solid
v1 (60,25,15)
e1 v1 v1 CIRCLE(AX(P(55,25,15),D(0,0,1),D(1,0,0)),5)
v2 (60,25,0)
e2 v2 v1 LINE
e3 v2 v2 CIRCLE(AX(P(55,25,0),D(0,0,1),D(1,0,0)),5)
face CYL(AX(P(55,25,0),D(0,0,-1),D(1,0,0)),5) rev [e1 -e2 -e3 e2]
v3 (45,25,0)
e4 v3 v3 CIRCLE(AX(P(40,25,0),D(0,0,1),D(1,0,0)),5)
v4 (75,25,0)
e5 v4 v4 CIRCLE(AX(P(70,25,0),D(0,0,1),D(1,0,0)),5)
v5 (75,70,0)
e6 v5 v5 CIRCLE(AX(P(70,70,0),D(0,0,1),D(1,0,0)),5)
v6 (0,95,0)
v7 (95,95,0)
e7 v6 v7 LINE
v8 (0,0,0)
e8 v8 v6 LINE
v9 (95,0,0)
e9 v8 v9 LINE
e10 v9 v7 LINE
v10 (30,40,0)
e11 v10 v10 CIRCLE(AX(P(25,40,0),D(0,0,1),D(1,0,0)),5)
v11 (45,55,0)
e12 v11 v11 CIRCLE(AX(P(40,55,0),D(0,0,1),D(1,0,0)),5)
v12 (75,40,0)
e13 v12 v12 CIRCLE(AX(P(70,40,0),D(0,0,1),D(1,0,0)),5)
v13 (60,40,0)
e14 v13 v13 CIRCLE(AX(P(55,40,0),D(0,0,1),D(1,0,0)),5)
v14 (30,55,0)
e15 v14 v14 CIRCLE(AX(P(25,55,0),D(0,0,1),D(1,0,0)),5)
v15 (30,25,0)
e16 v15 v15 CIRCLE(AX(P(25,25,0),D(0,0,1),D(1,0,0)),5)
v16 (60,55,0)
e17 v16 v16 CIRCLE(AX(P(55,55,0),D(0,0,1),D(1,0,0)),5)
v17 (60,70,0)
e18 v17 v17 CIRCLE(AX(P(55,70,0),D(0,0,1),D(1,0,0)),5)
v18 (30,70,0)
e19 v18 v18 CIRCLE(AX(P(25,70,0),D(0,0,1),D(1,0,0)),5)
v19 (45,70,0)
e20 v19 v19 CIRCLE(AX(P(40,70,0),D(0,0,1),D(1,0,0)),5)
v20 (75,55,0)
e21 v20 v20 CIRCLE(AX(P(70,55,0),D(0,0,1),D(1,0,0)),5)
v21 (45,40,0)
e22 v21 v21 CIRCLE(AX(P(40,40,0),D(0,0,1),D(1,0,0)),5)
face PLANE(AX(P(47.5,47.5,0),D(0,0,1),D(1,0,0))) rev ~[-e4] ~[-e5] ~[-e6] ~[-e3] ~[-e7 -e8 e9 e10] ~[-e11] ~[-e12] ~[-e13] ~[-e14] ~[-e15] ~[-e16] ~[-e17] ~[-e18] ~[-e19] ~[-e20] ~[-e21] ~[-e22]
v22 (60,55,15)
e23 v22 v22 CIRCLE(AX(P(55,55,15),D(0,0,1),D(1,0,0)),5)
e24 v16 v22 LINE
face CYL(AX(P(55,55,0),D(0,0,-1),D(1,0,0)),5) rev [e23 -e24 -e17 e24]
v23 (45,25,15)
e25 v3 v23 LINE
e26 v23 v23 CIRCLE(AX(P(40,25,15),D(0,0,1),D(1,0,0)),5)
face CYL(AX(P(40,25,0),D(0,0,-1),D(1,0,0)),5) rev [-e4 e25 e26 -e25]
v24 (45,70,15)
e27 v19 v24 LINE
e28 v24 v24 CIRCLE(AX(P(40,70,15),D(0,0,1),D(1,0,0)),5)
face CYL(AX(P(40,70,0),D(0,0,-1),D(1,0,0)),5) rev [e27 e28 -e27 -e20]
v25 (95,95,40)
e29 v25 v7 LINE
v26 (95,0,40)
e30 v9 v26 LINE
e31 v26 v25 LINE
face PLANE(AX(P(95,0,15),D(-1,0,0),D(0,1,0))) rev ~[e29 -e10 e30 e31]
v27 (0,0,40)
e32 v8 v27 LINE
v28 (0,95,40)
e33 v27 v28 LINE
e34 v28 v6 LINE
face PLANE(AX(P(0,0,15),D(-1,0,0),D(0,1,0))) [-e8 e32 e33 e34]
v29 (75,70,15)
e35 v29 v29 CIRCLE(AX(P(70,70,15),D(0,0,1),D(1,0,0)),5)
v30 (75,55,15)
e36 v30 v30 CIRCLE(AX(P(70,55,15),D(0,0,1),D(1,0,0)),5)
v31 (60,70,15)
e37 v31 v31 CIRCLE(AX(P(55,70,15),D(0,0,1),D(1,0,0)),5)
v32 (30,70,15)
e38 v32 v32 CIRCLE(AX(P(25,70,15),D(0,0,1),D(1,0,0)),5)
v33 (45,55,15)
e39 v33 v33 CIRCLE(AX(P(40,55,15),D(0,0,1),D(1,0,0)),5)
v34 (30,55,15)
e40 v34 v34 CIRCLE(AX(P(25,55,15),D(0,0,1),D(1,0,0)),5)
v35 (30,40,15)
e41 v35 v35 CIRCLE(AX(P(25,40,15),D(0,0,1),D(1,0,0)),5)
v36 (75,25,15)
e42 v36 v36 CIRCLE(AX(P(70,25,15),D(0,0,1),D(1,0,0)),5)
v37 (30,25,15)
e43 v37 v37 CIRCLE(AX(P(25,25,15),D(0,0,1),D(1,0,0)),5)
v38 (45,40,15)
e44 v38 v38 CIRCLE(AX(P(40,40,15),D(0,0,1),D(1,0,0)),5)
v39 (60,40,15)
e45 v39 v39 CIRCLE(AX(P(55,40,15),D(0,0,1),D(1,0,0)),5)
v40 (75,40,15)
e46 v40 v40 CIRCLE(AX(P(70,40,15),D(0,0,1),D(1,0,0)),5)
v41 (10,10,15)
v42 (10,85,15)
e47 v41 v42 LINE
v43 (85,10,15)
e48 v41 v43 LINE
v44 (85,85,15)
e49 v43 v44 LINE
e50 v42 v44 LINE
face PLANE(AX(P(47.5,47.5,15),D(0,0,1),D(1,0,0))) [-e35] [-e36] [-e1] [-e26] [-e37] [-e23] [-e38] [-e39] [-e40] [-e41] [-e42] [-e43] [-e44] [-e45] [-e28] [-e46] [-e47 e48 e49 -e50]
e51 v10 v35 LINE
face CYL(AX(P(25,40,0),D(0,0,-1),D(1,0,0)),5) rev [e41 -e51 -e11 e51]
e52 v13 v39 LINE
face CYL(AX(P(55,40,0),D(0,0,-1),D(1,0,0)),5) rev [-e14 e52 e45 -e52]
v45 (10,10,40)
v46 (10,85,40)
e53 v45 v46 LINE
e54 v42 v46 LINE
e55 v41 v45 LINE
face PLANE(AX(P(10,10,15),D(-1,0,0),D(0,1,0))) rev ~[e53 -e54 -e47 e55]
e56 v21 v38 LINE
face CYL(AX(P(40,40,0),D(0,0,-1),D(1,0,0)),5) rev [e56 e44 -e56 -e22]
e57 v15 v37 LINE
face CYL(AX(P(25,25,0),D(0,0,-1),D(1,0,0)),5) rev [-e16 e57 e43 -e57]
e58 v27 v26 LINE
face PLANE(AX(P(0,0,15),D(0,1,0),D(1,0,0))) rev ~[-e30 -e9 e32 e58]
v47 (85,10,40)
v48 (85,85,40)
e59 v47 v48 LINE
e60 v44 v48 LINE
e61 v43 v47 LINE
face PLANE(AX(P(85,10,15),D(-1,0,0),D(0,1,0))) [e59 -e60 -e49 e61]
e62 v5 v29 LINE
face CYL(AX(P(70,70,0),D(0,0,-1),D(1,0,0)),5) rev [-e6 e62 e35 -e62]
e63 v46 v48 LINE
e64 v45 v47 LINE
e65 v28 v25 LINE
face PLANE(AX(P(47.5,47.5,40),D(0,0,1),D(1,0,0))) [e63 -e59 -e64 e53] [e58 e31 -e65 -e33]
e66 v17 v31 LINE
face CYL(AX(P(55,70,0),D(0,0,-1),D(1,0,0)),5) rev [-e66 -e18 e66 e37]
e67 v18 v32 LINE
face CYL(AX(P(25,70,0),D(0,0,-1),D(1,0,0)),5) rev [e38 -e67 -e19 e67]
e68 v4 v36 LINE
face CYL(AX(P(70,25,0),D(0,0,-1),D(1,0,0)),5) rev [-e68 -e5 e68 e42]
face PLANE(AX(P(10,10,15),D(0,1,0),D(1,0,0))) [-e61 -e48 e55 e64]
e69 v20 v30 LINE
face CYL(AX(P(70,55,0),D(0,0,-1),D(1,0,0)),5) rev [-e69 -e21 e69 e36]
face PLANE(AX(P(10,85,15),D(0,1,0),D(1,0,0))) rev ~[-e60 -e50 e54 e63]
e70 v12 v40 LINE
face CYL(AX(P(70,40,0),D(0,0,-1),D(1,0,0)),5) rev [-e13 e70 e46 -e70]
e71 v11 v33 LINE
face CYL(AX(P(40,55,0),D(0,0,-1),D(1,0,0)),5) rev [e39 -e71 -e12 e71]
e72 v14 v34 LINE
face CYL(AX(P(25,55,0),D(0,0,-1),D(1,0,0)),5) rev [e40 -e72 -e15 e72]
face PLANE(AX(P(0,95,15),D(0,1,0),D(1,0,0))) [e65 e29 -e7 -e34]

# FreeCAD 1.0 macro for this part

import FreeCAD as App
import Part
import Sketcher


def add_polygon(sketch, points):
    """Adds a closed chain of lines whose ends are joined by coincident constraints."""
    first, n = sketch.GeometryCount, len(points)
    for a, b in zip(points, points[1:] + points[:1]):
        sketch.addGeometry(Part.LineSegment(App.Vector(*a, 0), App.Vector(*b, 0)), False)
    for i in range(n):
        sketch.addConstraint(Sketcher.Constraint("Coincident", first + i, 2, first + (i + 1) % n, 1))

doc = App.newDocument("Part")
params = doc.addObject("Spreadsheet::Sheet", "Params")
for row, (alias, value) in enumerate([
    ("sketch1_diameter", "10 mm"),
    ("sketch1_width", "95 mm"),
    ("pad1_length", "15 mm"),
    ("sketch2_width", "95 mm"),
    ("sketch2_width2", "75 mm"),
    ("pad2_length", "25 mm"),
], start=1):
    params.set(f"A{row}", alias)
    params.set(f"B{row}", "=" + value)
    params.setAlias(f"B{row}", alias)

body = doc.addObject("PartDesign::Body", "Body")

sketch1 = body.newObject("Sketcher::SketchObject", "Sketch")
sketch1.AttachmentSupport = (doc.getObject("XY_Plane"), [""])
sketch1.MapMode = "FlatFace"
add_polygon(sketch1, [(0, 95), (0, 0), (95, 0), (95, 95)])
sketch1.addGeometry(Part.Circle(App.Vector(25, 25, 0), App.Vector(0, 0, 1), 5), False)
sketch1.addGeometry(Part.Circle(App.Vector(40, 25, 0), App.Vector(0, 0, 1), 5), False)
sketch1.addGeometry(Part.Circle(App.Vector(25, 40, 0), App.Vector(0, 0, 1), 5), False)
sketch1.addGeometry(Part.Circle(App.Vector(40, 40, 0), App.Vector(0, 0, 1), 5), False)
sketch1.addGeometry(Part.Circle(App.Vector(55, 25, 0), App.Vector(0, 0, 1), 5), False)
sketch1.addGeometry(Part.Circle(App.Vector(70, 25, 0), App.Vector(0, 0, 1), 5), False)
sketch1.addGeometry(Part.Circle(App.Vector(55, 40, 0), App.Vector(0, 0, 1), 5), False)
sketch1.addGeometry(Part.Circle(App.Vector(70, 40, 0), App.Vector(0, 0, 1), 5), False)
sketch1.addGeometry(Part.Circle(App.Vector(25, 55, 0), App.Vector(0, 0, 1), 5), False)
sketch1.addGeometry(Part.Circle(App.Vector(40, 55, 0), App.Vector(0, 0, 1), 5), False)
sketch1.addGeometry(Part.Circle(App.Vector(25, 70, 0), App.Vector(0, 0, 1), 5), False)
sketch1.addGeometry(Part.Circle(App.Vector(40, 70, 0), App.Vector(0, 0, 1), 5), False)
sketch1.addGeometry(Part.Circle(App.Vector(55, 55, 0), App.Vector(0, 0, 1), 5), False)
sketch1.addGeometry(Part.Circle(App.Vector(70, 55, 0), App.Vector(0, 0, 1), 5), False)
sketch1.addGeometry(Part.Circle(App.Vector(55, 70, 0), App.Vector(0, 0, 1), 5), False)
sketch1.addGeometry(Part.Circle(App.Vector(70, 70, 0), App.Vector(0, 0, 1), 5), False)
sketch1.addConstraint([
    Sketcher.Constraint("Vertical", 0),
    Sketcher.Constraint("Horizontal", 1),
    Sketcher.Constraint("Vertical", 2),
    Sketcher.Constraint("Horizontal", 3),
    Sketcher.Constraint("Coincident", 0, 2, -1, 1),
    Sketcher.Constraint("Equal", 4, 5),
    Sketcher.Constraint("Equal", 5, 6),
    Sketcher.Constraint("Equal", 6, 7),
    Sketcher.Constraint("Equal", 7, 8),
    Sketcher.Constraint("Equal", 8, 9),
    Sketcher.Constraint("Equal", 9, 10),
    Sketcher.Constraint("Equal", 10, 11),
    Sketcher.Constraint("Equal", 11, 12),
    Sketcher.Constraint("Equal", 12, 13),
    Sketcher.Constraint("Equal", 13, 14),
    Sketcher.Constraint("Equal", 14, 15),
    Sketcher.Constraint("Equal", 15, 16),
    Sketcher.Constraint("Equal", 16, 17),
    Sketcher.Constraint("Equal", 17, 18),
    Sketcher.Constraint("Equal", 18, 19),
    Sketcher.Constraint("Horizontal", 4, 3, 5, 3),
    Sketcher.Constraint("Horizontal", 6, 3, 7, 3),
    Sketcher.Constraint("Horizontal", 5, 3, 8, 3),
    Sketcher.Constraint("Horizontal", 8, 3, 9, 3),
    Sketcher.Constraint("Horizontal", 7, 3, 10, 3),
    Sketcher.Constraint("Horizontal", 10, 3, 11, 3),
    Sketcher.Constraint("Horizontal", 12, 3, 13, 3),
    Sketcher.Constraint("Horizontal", 14, 3, 15, 3),
    Sketcher.Constraint("Horizontal", 13, 3, 16, 3),
    Sketcher.Constraint("Horizontal", 16, 3, 17, 3),
    Sketcher.Constraint("Horizontal", 15, 3, 18, 3),
    Sketcher.Constraint("Horizontal", 18, 3, 19, 3),
    Sketcher.Constraint("Vertical", 4, 3, 6, 3),
    Sketcher.Constraint("Vertical", 5, 3, 7, 3),
    Sketcher.Constraint("Vertical", 8, 3, 10, 3),
    Sketcher.Constraint("Vertical", 9, 3, 11, 3),
    Sketcher.Constraint("Vertical", 6, 3, 12, 3),
    Sketcher.Constraint("Vertical", 7, 3, 13, 3),
    Sketcher.Constraint("Vertical", 12, 3, 14, 3),
    Sketcher.Constraint("Vertical", 13, 3, 15, 3),
    Sketcher.Constraint("Vertical", 10, 3, 16, 3),
    Sketcher.Constraint("Vertical", 11, 3, 17, 3),
    Sketcher.Constraint("Vertical", 16, 3, 18, 3),
    Sketcher.Constraint("Vertical", 17, 3, 19, 3),
    Sketcher.Constraint("Equal", 3, 0),
    Sketcher.Constraint("Diameter", 4, 10.0),
    Sketcher.Constraint("DistanceX", 1, 1, 1, 2, 95.0),
    Sketcher.Constraint("DistanceX", -1, 1, 4, 3, 25.0),
    Sketcher.Constraint("DistanceY", -1, 1, 4, 3, 25.0),
    Sketcher.Constraint("DistanceX", -1, 1, 5, 3, 40.0),
    Sketcher.Constraint("DistanceY", -1, 1, 6, 3, 40.0),
    Sketcher.Constraint("DistanceX", -1, 1, 8, 3, 55.0),
    Sketcher.Constraint("DistanceX", -1, 1, 9, 3, 70.0),
    Sketcher.Constraint("DistanceY", -1, 1, 12, 3, 55.0),
    Sketcher.Constraint("DistanceY", -1, 1, 14, 3, 70.0),
])
sketch1.setExpression("Constraints[49]", "Params.sketch1_diameter")
sketch1.setExpression("Constraints[50]", "Params.sketch1_width")
pad1 = body.newObject("PartDesign::Pad", "Pad")
pad1.Profile = sketch1
pad1.setExpression("Length", "Params.pad1_length")

sketch2 = body.newObject("Sketcher::SketchObject", "Sketch001")
sketch2.AttachmentSupport = (doc.getObject("XY_Plane"), [""])
sketch2.MapMode = "FlatFace"
sketch2.AttachmentOffset = App.Placement(App.Vector(0, 0, 15), App.Rotation())
add_polygon(sketch2, [(0, 95), (0, 0), (95, 0), (95, 95)])
add_polygon(sketch2, [(85, 10), (10, 10), (10, 85), (85, 85)])
sketch2.addConstraint([
    Sketcher.Constraint("Vertical", 0),
    Sketcher.Constraint("Horizontal", 1),
    Sketcher.Constraint("Vertical", 2),
    Sketcher.Constraint("Horizontal", 3),
    Sketcher.Constraint("Horizontal", 4),
    Sketcher.Constraint("Vertical", 5),
    Sketcher.Constraint("Horizontal", 6),
    Sketcher.Constraint("Vertical", 7),
    Sketcher.Constraint("Coincident", 0, 2, -1, 1),
    Sketcher.Constraint("Equal", 3, 0),
    Sketcher.Constraint("Equal", 6, 5),
    Sketcher.Constraint("DistanceX", 1, 1, 1, 2, 95.0),
    Sketcher.Constraint("DistanceX", 4, 2, 4, 1, 75.0),
    Sketcher.Constraint("DistanceX", -1, 1, 4, 2, 10.0),
    Sketcher.Constraint("DistanceY", -1, 1, 4, 2, 10.0),
])
sketch2.setExpression("Constraints[19]", "Params.sketch2_width")
sketch2.setExpression("Constraints[20]", "Params.sketch2_width2")
pad2 = body.newObject("PartDesign::Pad", "Pad001")
pad2.Profile = sketch2
pad2.setExpression("Length", "Params.pad2_length")

doc.recompute()
